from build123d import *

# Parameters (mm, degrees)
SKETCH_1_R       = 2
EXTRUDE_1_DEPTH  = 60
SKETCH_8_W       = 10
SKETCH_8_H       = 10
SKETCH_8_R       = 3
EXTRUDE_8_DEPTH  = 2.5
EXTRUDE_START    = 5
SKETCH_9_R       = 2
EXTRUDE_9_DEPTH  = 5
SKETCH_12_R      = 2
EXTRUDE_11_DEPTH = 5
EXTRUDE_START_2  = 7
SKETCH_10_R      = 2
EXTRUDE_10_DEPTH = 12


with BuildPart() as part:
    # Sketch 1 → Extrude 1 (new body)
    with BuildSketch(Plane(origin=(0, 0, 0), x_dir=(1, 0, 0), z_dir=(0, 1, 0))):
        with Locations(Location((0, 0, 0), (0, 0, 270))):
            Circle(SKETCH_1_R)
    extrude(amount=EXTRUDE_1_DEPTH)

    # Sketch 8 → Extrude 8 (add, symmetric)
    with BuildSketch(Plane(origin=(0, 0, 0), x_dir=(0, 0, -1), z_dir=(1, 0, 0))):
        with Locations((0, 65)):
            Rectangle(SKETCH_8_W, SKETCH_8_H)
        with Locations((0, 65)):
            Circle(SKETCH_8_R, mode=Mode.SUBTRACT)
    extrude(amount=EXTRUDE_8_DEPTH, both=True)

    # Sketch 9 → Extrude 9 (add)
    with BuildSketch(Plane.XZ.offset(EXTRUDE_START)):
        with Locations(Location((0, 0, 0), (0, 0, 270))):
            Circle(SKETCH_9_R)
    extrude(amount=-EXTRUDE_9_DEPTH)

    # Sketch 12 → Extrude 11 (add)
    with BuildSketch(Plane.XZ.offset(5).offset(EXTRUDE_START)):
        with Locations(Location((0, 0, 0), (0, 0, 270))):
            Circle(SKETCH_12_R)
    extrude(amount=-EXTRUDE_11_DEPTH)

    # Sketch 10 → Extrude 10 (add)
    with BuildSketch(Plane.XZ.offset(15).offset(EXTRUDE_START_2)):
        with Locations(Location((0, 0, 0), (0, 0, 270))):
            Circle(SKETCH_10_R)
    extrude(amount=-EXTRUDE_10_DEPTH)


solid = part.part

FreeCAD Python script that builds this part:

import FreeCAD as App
import Part
import Sketcher
from FreeCAD import Vector

doc = App.newDocument("Part")
body = doc.addObject("PartDesign::Body", "Body")

# Sketch on XZ plane
sketch1 = body.newObject("Sketcher::SketchObject", "Sketch")
sketch1.AttachmentSupport = (doc.getObject("XZ_Plane"), [""])
sketch1.MapMode = "FlatFace"
sketch1.addGeometry(Part.Circle(Vector(0, 0, 0), Vector(0, 0, 1), 2), False)
sketch1.addConstraint(Sketcher.Constraint("Coincident", 0, 3, -1, 1))
sketch1.addConstraint(Sketcher.Constraint("Diameter", 0, 4.0))
pad1 = body.newObject("PartDesign::Pad", "Pad")
pad1.Profile = sketch1
pad1.Length = 60
pad1.Reversed = True

# Sketch on YZ plane
sketch2 = body.newObject("Sketcher::SketchObject", "Sketch001")
sketch2.AttachmentSupport = (doc.getObject("YZ_Plane"), [""])
sketch2.MapMode = "FlatFace"
sketch2.addGeometry(Part.LineSegment(Vector(70, 5, 0), Vector(60, 5, 0)), False)
sketch2.addGeometry(Part.LineSegment(Vector(60, 5, 0), Vector(60, -5, 0)), False)
sketch2.addGeometry(Part.LineSegment(Vector(60, -5, 0), Vector(70, -5, 0)), False)
sketch2.addGeometry(Part.LineSegment(Vector(70, -5, 0), Vector(70, 5, 0)), False)
sketch2.addGeometry(Part.Circle(Vector(65, 0, 0), Vector(0, 0, 1), 3), False)
sketch2.addConstraint(Sketcher.Constraint("Coincident", 0, 2, 1, 1))
sketch2.addConstraint(Sketcher.Constraint("Coincident", 1, 2, 2, 1))
sketch2.addConstraint(Sketcher.Constraint("Coincident", 2, 2, 3, 1))
sketch2.addConstraint(Sketcher.Constraint("Coincident", 3, 2, 0, 1))
sketch2.addConstraint(Sketcher.Constraint("Horizontal", 0))
sketch2.addConstraint(Sketcher.Constraint("Vertical", 1))
sketch2.addConstraint(Sketcher.Constraint("Horizontal", 2))
sketch2.addConstraint(Sketcher.Constraint("Vertical", 3))
sketch2.addConstraint(Sketcher.Constraint("PointOnObject", 4, 3, -1))
sketch2.addConstraint(Sketcher.Constraint("Equal", 2, 1))
sketch2.addConstraint(Sketcher.Constraint("Diameter", 4, 6.0))
sketch2.addConstraint(Sketcher.Constraint("DistanceX", 0, 2, 0, 1, 10.0))
sketch2.addConstraint(Sketcher.Constraint("DistanceX", -1, 1, 4, 3, 65.0))
sketch2.addConstraint(Sketcher.Constraint("DistanceX", -1, 1, 0, 2, 60.0))
sketch2.addConstraint(Sketcher.Constraint("DistanceY", -1, 1, 0, 2, 5.0))
pad2 = body.newObject("PartDesign::Pad", "Pad001")
pad2.Profile = sketch2
pad2.Length = 5
pad2.Midplane = True

# Sketch on XZ plane
sketch3 = body.newObject("Sketcher::SketchObject", "Sketch002")
sketch3.AttachmentSupport = (doc.getObject("XZ_Plane"), [""])
sketch3.MapMode = "FlatFace"
sketch3.AttachmentOffset = App.Placement(Vector(0, 0, 5), App.Rotation())
sketch3.addGeometry(Part.Circle(Vector(0, 0, 0), Vector(0, 0, 1), 2), False)
sketch3.addConstraint(Sketcher.Constraint("Coincident", 0, 3, -1, 1))
sketch3.addConstraint(Sketcher.Constraint("Diameter", 0, 4.0))
pad3 = body.newObject("PartDesign::Pad", "Pad002")
pad3.Profile = sketch3
pad3.Length = 5
pad3.Reversed = True

# Sketch on XZ plane
sketch4 = body.newObject("Sketcher::SketchObject", "Sketch003")
sketch4.AttachmentSupport = (doc.getObject("XZ_Plane"), [""])
sketch4.MapMode = "FlatFace"
sketch4.AttachmentOffset = App.Placement(Vector(0, 0, 10), App.Rotation())
sketch4.addGeometry(Part.Circle(Vector(0, 0, 0), Vector(0, 0, 1), 2), False)
sketch4.addConstraint(Sketcher.Constraint("Coincident", 0, 3, -1, 1))
sketch4.addConstraint(Sketcher.Constraint("Diameter", 0, 4.0))
pad4 = body.newObject("PartDesign::Pad", "Pad003")
pad4.Profile = sketch4
pad4.Length = 5
pad4.Reversed = True

# Sketch on XZ plane
sketch5 = body.newObject("Sketcher::SketchObject", "Sketch004")
sketch5.AttachmentSupport = (doc.getObject("XZ_Plane"), [""])
sketch5.MapMode = "FlatFace"
sketch5.AttachmentOffset = App.Placement(Vector(0, 0, 22), App.Rotation())
sketch5.addGeometry(Part.Circle(Vector(0, 0, 0), Vector(0, 0, 1), 2), False)
sketch5.addConstraint(Sketcher.Constraint("Coincident", 0, 3, -1, 1))
sketch5.addConstraint(Sketcher.Constraint("Diameter", 0, 4.0))
pad5 = body.newObject("PartDesign::Pad", "Pad004")
pad5.Profile = sketch5
pad5.Length = 12
pad5.Reversed = True

doc.recompute()
